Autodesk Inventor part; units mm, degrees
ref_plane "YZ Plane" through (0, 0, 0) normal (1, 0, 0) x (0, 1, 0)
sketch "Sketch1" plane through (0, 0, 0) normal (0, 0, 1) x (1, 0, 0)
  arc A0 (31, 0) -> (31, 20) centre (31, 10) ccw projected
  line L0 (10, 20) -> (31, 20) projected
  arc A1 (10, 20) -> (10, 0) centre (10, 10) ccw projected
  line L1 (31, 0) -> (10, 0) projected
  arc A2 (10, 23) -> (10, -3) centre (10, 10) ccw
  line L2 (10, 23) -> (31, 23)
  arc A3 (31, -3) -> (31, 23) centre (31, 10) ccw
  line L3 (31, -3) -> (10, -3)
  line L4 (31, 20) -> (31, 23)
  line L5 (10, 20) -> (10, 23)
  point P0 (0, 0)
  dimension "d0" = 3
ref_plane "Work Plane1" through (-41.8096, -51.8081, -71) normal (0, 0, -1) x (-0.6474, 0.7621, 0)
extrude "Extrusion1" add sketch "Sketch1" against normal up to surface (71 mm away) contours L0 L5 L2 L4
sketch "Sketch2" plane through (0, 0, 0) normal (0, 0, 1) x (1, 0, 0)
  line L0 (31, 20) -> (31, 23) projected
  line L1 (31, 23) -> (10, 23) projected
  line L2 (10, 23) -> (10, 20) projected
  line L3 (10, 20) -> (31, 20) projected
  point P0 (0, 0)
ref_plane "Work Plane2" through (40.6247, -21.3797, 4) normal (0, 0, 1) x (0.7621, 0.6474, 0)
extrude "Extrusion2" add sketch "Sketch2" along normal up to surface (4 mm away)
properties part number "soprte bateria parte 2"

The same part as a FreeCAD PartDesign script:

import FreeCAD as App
import Part
import Sketcher
Q = App.Units.Quantity

doc = App.newDocument("Part")
body = doc.addObject("PartDesign::Body", "Body")

sketch1 = body.newObject("Sketcher::SketchObject", "Sketch")
sketch1.AttachmentSupport = (doc.getObject("XY_Plane"), [""])
sketch1.MapMode = "FlatFace"
sketch1.addGeometry([
    Part.LineSegment(App.Vector(10, 20, 0), App.Vector(31, 20, 0)),
    Part.LineSegment(App.Vector(31, 20, 0), App.Vector(31, 23, 0)),
    Part.LineSegment(App.Vector(31, 23, 0), App.Vector(10, 23, 0)),
    Part.LineSegment(App.Vector(10, 23, 0), App.Vector(10, 20, 0)),
], False)
sketch1.addConstraint([
    Sketcher.Constraint("Coincident", 0, 2, 1, 1),
    Sketcher.Constraint("Coincident", 1, 2, 2, 1),
    Sketcher.Constraint("Coincident", 2, 2, 3, 1),
    Sketcher.Constraint("Coincident", 3, 2, 0, 1),
    Sketcher.Constraint("Horizontal", 0),
    Sketcher.Constraint("Vertical", 1),
    Sketcher.Constraint("Horizontal", 2),
    Sketcher.Constraint("Vertical", 3),
    Sketcher.Constraint("DistanceY", 1, 1, 1, 2, Q("3 mm")),
    Sketcher.Constraint("DistanceX", 0, 1, 0, 2, Q("21 mm")),
    Sketcher.Constraint("DistanceX", -1, 1, 0, 2, Q("31 mm")),
    Sketcher.Constraint("DistanceY", -1, 1, 0, 2, Q("20 mm")),
])
pad1 = body.newObject("PartDesign::Pad", "Pad")
pad1.Profile = sketch1
pad1.Length = 71
pad1.Reversed = True

sketch2 = body.newObject("Sketcher::SketchObject", "Sketch001")
sketch2.AttachmentSupport = (doc.getObject("XY_Plane"), [""])
sketch2.MapMode = "FlatFace"
sketch2.addGeometry([
    Part.LineSegment(App.Vector(10, 20, 0), App.Vector(31, 20, 0)),
    Part.LineSegment(App.Vector(31, 20, 0), App.Vector(31, 23, 0)),
    Part.LineSegment(App.Vector(31, 23, 0), App.Vector(10, 23, 0)),
    Part.LineSegment(App.Vector(10, 23, 0), App.Vector(10, 20, 0)),
], False)
sketch2.addConstraint([
    Sketcher.Constraint("Coincident", 0, 2, 1, 1),
    Sketcher.Constraint("Coincident", 1, 2, 2, 1),
    Sketcher.Constraint("Coincident", 2, 2, 3, 1),
    Sketcher.Constraint("Coincident", 3, 2, 0, 1),
    Sketcher.Constraint("Horizontal", 0),
    Sketcher.Constraint("Vertical", 1),
    Sketcher.Constraint("Horizontal", 2),
    Sketcher.Constraint("Vertical", 3),
    Sketcher.Constraint("DistanceX", 0, 1, 0, 2, Q("21 mm")),
    Sketcher.Constraint("DistanceY", 1, 1, 1, 2, Q("3 mm")),
    Sketcher.Constraint("DistanceX", -1, 1, 0, 2, Q("31 mm")),
    Sketcher.Constraint("DistanceY", -1, 1, 0, 2, Q("20 mm")),
])
pad2 = body.newObject("PartDesign::Pad", "Pad001")
pad2.Profile = sketch2
pad2.Length = 4

doc.recompute()
